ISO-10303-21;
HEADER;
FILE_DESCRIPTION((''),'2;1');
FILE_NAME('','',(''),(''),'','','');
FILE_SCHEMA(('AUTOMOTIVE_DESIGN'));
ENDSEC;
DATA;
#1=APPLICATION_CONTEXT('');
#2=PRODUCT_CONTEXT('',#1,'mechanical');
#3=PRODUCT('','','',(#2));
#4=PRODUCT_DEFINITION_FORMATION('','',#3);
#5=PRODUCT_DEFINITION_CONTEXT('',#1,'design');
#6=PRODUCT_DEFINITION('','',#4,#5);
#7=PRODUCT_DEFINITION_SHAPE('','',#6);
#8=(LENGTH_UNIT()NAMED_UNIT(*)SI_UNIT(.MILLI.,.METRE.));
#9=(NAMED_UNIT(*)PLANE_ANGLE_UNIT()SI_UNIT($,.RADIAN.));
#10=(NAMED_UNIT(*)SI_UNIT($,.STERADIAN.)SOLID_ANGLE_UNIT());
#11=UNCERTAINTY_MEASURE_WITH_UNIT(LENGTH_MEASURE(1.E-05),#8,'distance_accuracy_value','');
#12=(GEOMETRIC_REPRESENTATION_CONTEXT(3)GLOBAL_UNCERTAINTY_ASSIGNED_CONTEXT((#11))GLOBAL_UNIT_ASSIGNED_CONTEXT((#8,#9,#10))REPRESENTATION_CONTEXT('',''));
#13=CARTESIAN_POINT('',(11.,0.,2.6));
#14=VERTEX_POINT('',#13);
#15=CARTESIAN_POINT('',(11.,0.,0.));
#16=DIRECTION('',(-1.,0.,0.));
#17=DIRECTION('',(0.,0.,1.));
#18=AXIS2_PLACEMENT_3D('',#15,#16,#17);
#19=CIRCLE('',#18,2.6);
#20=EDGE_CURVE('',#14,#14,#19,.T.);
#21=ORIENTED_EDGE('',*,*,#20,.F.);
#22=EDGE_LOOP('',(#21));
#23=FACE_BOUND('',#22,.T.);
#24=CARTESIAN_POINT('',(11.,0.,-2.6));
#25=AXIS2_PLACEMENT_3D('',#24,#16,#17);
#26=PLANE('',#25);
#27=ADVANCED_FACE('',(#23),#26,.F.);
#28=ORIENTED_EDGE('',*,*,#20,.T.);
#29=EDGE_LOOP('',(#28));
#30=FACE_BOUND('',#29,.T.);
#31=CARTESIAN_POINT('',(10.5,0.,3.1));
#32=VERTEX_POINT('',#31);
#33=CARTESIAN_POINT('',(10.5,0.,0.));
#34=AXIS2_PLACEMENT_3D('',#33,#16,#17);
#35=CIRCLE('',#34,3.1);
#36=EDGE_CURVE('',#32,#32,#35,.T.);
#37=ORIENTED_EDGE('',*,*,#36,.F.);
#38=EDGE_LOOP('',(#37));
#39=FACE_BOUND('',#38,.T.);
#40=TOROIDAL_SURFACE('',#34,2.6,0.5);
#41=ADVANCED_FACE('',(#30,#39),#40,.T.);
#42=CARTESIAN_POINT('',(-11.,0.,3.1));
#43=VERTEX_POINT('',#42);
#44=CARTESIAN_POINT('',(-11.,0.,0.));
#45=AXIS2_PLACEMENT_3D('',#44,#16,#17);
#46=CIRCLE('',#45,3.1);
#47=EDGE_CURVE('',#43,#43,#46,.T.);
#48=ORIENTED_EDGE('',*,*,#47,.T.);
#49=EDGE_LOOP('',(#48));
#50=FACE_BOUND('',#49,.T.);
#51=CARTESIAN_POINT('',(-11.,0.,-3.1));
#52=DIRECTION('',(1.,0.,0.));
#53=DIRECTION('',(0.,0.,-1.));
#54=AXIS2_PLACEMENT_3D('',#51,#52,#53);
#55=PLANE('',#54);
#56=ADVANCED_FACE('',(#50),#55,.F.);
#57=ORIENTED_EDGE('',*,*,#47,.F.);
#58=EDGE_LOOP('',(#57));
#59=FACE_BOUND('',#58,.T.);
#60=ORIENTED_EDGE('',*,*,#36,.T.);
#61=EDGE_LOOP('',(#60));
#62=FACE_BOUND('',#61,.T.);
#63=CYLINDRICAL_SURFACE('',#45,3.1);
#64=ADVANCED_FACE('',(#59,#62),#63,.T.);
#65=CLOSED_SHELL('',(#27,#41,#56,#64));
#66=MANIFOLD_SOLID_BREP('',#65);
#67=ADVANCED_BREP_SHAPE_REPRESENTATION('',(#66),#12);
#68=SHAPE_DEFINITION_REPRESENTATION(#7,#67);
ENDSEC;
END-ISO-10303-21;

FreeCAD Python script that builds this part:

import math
import FreeCAD as App
import Part
import Sketcher
Q = App.Units.Quantity

doc = App.newDocument("Part")
params = doc.addObject("Spreadsheet::Sheet", "Params")
for row, (alias, value) in enumerate([
    ("sketch1_radius", "0.5 mm"),
    ("sketch1_width", "22 mm"),
    ("sketch1_height", "3.1 mm"),
    ("revolution_angle", "360 deg"),
], start=1):
    params.set(f"A{row}", alias)
    params.set(f"B{row}", "=" + value)
    params.setAlias(f"B{row}", alias)

body = doc.addObject("PartDesign::Body", "Body")

# Sketch on XZ plane
sketch1 = body.newObject("Sketcher::SketchObject", "Sketch")
sketch1.AttachmentSupport = (doc.getObject("XZ_Plane"), [""])
sketch1.MapMode = "FlatFace"
sketch1.addGeometry([
    Part.LineSegment(App.Vector(10.5, -3.1, 0), App.Vector(-11, -3.1, 0)),  # 0
    Part.LineSegment(App.Vector(-11, -3.1, 0), App.Vector(-11, 0, 0)),  # 1
    Part.LineSegment(App.Vector(-11, 0, 0), App.Vector(11, 0, 0)),  # 2
    Part.LineSegment(App.Vector(11, 0, 0), App.Vector(11, -2.6, 0)),  # 3
    Part.ArcOfCircle(Part.Circle(App.Vector(10.5, -2.6, 0), App.Vector(0, 0, 1), 0.5), math.radians(-90), math.radians(0)),  # 4
], False)
sketch1.addConstraint([
    Sketcher.Constraint("Coincident", 0, 2, 1, 1),
    Sketcher.Constraint("Coincident", 1, 2, 2, 1),
    Sketcher.Constraint("Coincident", 2, 2, 3, 1),
    Sketcher.Constraint("Tangent", 3, 2, 4, 2),
    Sketcher.Constraint("Tangent", 4, 1, 0, 1),
    Sketcher.Constraint("Horizontal", 0),
    Sketcher.Constraint("Vertical", 1),
    Sketcher.Constraint("Horizontal", 2),
    Sketcher.Constraint("Vertical", 3),
    Sketcher.Constraint("Symmetric", 1, 2, 2, 2, -1, 1),
    Sketcher.Constraint("Radius", 4, Q("0.5 mm")),
    Sketcher.Constraint("DistanceX", 2, 1, 2, 2, Q("22 mm")),
    Sketcher.Constraint("DistanceY", 1, 1, 1, 2, Q("3.1 mm")),
])
sketch1.setExpression("Constraints[10]", "Params.sketch1_radius")
sketch1.setExpression("Constraints[11]", "Params.sketch1_width")
sketch1.setExpression("Constraints[12]", "Params.sketch1_height")
revolution = body.newObject("PartDesign::Revolution", "Revolution")
revolution.Profile = sketch1
revolution.ReferenceAxis = (sketch1, ["H_Axis"])
revolution.setExpression("Angle", "Params.revolution_angle")

doc.recompute()
